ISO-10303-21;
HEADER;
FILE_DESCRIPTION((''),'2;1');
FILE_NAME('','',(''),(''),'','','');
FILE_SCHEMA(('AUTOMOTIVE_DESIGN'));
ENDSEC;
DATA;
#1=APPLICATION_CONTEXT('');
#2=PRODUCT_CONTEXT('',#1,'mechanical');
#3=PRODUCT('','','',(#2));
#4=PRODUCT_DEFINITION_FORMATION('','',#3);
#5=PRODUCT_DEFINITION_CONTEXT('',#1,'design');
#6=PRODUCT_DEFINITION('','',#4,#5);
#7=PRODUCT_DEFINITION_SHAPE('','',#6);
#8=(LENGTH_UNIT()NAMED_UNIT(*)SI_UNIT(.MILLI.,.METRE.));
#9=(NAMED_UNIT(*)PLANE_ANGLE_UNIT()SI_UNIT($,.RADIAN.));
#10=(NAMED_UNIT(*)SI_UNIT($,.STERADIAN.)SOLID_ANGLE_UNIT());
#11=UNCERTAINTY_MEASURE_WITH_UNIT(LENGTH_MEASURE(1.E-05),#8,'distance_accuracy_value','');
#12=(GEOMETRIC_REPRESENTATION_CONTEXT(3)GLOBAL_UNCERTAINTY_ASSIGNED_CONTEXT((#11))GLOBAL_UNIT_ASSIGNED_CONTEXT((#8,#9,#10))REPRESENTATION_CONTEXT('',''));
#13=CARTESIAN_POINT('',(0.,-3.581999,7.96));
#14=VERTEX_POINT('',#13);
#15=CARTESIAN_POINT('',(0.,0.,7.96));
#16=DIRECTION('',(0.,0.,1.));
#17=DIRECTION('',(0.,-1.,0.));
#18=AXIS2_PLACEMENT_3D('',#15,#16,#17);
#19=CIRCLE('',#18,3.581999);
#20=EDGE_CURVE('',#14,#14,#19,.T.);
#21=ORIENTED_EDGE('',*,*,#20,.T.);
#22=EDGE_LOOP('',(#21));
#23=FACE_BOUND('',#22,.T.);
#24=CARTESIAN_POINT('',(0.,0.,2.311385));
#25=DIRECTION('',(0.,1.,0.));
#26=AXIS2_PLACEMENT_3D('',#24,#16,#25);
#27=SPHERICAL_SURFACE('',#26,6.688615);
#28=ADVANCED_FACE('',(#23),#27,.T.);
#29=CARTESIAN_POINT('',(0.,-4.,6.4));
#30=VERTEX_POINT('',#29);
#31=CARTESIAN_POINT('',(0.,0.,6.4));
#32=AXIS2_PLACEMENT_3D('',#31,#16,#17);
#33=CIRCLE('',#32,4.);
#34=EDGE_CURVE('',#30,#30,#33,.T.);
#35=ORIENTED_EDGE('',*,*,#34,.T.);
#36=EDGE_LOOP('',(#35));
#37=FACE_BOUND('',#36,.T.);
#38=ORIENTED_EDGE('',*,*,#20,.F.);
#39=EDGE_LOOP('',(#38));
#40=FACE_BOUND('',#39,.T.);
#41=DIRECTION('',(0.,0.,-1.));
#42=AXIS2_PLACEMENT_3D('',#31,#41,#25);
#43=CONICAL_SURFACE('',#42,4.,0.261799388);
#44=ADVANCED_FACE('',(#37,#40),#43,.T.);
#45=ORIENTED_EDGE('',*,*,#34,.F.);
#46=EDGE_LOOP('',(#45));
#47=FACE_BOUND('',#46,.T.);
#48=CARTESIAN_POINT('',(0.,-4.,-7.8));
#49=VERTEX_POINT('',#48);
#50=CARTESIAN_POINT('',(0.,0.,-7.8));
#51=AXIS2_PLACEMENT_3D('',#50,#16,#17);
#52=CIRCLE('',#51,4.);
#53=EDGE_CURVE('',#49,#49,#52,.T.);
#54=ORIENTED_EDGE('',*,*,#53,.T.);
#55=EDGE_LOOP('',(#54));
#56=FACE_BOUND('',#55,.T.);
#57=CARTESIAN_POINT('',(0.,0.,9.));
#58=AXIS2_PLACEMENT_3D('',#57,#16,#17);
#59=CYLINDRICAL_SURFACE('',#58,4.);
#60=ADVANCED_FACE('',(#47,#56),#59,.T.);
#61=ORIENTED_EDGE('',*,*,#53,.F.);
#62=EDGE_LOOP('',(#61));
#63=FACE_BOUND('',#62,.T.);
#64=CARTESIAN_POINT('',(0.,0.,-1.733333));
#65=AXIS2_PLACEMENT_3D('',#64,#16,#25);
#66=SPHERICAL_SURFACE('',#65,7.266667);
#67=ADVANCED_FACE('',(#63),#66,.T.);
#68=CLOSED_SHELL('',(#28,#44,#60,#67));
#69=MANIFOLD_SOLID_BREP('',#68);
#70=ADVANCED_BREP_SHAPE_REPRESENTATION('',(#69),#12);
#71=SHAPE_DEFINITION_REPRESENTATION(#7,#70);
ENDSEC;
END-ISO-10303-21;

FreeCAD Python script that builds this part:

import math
import FreeCAD as App
import Part
import Sketcher
Q = App.Units.Quantity

doc = App.newDocument("Part")
params = doc.addObject("Spreadsheet::Sheet", "Params")
for row, (alias, value) in enumerate([
    ("sketch1_height", "18 mm"),
    ("sketch1_height2", "14.2 mm"),
    ("revolution_angle", "360 deg"),
], start=1):
    params.set(f"A{row}", alias)
    params.set(f"B{row}", "=" + value)
    params.setAlias(f"B{row}", alias)

body = doc.addObject("PartDesign::Body", "Body")

# Sketch on YZ plane
sketch1 = body.newObject("Sketcher::SketchObject", "Sketch")
sketch1.AttachmentSupport = (doc.getObject("YZ_Plane"), [""])
sketch1.MapMode = "FlatFace"
sketch1.addGeometry([
    Part.LineSegment(App.Vector(0, 9, 0), App.Vector(0, -9, 0)),  # 0
    Part.ArcOfCircle(Part.Circle(App.Vector(0, -1.7, 0), App.Vector(0, 0, 1), 7.3), math.radians(-90), math.radians(-57)),  # 1
    Part.LineSegment(App.Vector(4, -7.8, 0), App.Vector(4, 6.4, 0)),  # 2
    Part.LineSegment(App.Vector(4, 6.4, 0), App.Vector(3.6, 8, 0)),  # 3
    Part.ArcOfCircle(Part.Circle(App.Vector(0, 2.3, 0), App.Vector(0, 0, 1), 6.7), math.radians(58), math.radians(90)),  # 4
], False)
sketch1.addConstraint([
    Sketcher.Constraint("Coincident", 0, 2, 1, 1),
    Sketcher.Constraint("Coincident", 1, 2, 2, 1),
    Sketcher.Constraint("Coincident", 2, 2, 3, 1),
    Sketcher.Constraint("Coincident", 3, 2, 4, 1),
    Sketcher.Constraint("Coincident", 4, 2, 0, 1),
    Sketcher.Constraint("Vertical", 0),
    Sketcher.Constraint("Vertical", 2),
    Sketcher.Constraint("Symmetric", 0, 2, 4, 2, -1, 1),
    Sketcher.Constraint("PointOnObject", 1, 3, -2),
    Sketcher.Constraint("PointOnObject", 4, 3, -2),
    Sketcher.Constraint("DistanceY", 0, 2, 0, 1, 18.0),
    Sketcher.Constraint("Angle", 3, Q("105 deg")),
    Sketcher.Constraint("DistanceY", 2, 1, 2, 2, 14.2),
    Sketcher.Constraint("DistanceX", -1, 1, 1, 2, 4.0),
    Sketcher.Constraint("DistanceY", 1, 2, -1, 1, 7.8),
    Sketcher.Constraint("DistanceY", -1, 1, 3, 2, 7.96),
])
sketch1.setExpression("Constraints[10]", "Params.sketch1_height")
sketch1.setExpression("Constraints[12]", "Params.sketch1_height2")
revolution = body.newObject("PartDesign::Revolution", "Revolution")
revolution.Profile = sketch1
revolution.ReferenceAxis = (sketch1, ["V_Axis"])
revolution.setExpression("Angle", "Params.revolution_angle")

doc.recompute()
